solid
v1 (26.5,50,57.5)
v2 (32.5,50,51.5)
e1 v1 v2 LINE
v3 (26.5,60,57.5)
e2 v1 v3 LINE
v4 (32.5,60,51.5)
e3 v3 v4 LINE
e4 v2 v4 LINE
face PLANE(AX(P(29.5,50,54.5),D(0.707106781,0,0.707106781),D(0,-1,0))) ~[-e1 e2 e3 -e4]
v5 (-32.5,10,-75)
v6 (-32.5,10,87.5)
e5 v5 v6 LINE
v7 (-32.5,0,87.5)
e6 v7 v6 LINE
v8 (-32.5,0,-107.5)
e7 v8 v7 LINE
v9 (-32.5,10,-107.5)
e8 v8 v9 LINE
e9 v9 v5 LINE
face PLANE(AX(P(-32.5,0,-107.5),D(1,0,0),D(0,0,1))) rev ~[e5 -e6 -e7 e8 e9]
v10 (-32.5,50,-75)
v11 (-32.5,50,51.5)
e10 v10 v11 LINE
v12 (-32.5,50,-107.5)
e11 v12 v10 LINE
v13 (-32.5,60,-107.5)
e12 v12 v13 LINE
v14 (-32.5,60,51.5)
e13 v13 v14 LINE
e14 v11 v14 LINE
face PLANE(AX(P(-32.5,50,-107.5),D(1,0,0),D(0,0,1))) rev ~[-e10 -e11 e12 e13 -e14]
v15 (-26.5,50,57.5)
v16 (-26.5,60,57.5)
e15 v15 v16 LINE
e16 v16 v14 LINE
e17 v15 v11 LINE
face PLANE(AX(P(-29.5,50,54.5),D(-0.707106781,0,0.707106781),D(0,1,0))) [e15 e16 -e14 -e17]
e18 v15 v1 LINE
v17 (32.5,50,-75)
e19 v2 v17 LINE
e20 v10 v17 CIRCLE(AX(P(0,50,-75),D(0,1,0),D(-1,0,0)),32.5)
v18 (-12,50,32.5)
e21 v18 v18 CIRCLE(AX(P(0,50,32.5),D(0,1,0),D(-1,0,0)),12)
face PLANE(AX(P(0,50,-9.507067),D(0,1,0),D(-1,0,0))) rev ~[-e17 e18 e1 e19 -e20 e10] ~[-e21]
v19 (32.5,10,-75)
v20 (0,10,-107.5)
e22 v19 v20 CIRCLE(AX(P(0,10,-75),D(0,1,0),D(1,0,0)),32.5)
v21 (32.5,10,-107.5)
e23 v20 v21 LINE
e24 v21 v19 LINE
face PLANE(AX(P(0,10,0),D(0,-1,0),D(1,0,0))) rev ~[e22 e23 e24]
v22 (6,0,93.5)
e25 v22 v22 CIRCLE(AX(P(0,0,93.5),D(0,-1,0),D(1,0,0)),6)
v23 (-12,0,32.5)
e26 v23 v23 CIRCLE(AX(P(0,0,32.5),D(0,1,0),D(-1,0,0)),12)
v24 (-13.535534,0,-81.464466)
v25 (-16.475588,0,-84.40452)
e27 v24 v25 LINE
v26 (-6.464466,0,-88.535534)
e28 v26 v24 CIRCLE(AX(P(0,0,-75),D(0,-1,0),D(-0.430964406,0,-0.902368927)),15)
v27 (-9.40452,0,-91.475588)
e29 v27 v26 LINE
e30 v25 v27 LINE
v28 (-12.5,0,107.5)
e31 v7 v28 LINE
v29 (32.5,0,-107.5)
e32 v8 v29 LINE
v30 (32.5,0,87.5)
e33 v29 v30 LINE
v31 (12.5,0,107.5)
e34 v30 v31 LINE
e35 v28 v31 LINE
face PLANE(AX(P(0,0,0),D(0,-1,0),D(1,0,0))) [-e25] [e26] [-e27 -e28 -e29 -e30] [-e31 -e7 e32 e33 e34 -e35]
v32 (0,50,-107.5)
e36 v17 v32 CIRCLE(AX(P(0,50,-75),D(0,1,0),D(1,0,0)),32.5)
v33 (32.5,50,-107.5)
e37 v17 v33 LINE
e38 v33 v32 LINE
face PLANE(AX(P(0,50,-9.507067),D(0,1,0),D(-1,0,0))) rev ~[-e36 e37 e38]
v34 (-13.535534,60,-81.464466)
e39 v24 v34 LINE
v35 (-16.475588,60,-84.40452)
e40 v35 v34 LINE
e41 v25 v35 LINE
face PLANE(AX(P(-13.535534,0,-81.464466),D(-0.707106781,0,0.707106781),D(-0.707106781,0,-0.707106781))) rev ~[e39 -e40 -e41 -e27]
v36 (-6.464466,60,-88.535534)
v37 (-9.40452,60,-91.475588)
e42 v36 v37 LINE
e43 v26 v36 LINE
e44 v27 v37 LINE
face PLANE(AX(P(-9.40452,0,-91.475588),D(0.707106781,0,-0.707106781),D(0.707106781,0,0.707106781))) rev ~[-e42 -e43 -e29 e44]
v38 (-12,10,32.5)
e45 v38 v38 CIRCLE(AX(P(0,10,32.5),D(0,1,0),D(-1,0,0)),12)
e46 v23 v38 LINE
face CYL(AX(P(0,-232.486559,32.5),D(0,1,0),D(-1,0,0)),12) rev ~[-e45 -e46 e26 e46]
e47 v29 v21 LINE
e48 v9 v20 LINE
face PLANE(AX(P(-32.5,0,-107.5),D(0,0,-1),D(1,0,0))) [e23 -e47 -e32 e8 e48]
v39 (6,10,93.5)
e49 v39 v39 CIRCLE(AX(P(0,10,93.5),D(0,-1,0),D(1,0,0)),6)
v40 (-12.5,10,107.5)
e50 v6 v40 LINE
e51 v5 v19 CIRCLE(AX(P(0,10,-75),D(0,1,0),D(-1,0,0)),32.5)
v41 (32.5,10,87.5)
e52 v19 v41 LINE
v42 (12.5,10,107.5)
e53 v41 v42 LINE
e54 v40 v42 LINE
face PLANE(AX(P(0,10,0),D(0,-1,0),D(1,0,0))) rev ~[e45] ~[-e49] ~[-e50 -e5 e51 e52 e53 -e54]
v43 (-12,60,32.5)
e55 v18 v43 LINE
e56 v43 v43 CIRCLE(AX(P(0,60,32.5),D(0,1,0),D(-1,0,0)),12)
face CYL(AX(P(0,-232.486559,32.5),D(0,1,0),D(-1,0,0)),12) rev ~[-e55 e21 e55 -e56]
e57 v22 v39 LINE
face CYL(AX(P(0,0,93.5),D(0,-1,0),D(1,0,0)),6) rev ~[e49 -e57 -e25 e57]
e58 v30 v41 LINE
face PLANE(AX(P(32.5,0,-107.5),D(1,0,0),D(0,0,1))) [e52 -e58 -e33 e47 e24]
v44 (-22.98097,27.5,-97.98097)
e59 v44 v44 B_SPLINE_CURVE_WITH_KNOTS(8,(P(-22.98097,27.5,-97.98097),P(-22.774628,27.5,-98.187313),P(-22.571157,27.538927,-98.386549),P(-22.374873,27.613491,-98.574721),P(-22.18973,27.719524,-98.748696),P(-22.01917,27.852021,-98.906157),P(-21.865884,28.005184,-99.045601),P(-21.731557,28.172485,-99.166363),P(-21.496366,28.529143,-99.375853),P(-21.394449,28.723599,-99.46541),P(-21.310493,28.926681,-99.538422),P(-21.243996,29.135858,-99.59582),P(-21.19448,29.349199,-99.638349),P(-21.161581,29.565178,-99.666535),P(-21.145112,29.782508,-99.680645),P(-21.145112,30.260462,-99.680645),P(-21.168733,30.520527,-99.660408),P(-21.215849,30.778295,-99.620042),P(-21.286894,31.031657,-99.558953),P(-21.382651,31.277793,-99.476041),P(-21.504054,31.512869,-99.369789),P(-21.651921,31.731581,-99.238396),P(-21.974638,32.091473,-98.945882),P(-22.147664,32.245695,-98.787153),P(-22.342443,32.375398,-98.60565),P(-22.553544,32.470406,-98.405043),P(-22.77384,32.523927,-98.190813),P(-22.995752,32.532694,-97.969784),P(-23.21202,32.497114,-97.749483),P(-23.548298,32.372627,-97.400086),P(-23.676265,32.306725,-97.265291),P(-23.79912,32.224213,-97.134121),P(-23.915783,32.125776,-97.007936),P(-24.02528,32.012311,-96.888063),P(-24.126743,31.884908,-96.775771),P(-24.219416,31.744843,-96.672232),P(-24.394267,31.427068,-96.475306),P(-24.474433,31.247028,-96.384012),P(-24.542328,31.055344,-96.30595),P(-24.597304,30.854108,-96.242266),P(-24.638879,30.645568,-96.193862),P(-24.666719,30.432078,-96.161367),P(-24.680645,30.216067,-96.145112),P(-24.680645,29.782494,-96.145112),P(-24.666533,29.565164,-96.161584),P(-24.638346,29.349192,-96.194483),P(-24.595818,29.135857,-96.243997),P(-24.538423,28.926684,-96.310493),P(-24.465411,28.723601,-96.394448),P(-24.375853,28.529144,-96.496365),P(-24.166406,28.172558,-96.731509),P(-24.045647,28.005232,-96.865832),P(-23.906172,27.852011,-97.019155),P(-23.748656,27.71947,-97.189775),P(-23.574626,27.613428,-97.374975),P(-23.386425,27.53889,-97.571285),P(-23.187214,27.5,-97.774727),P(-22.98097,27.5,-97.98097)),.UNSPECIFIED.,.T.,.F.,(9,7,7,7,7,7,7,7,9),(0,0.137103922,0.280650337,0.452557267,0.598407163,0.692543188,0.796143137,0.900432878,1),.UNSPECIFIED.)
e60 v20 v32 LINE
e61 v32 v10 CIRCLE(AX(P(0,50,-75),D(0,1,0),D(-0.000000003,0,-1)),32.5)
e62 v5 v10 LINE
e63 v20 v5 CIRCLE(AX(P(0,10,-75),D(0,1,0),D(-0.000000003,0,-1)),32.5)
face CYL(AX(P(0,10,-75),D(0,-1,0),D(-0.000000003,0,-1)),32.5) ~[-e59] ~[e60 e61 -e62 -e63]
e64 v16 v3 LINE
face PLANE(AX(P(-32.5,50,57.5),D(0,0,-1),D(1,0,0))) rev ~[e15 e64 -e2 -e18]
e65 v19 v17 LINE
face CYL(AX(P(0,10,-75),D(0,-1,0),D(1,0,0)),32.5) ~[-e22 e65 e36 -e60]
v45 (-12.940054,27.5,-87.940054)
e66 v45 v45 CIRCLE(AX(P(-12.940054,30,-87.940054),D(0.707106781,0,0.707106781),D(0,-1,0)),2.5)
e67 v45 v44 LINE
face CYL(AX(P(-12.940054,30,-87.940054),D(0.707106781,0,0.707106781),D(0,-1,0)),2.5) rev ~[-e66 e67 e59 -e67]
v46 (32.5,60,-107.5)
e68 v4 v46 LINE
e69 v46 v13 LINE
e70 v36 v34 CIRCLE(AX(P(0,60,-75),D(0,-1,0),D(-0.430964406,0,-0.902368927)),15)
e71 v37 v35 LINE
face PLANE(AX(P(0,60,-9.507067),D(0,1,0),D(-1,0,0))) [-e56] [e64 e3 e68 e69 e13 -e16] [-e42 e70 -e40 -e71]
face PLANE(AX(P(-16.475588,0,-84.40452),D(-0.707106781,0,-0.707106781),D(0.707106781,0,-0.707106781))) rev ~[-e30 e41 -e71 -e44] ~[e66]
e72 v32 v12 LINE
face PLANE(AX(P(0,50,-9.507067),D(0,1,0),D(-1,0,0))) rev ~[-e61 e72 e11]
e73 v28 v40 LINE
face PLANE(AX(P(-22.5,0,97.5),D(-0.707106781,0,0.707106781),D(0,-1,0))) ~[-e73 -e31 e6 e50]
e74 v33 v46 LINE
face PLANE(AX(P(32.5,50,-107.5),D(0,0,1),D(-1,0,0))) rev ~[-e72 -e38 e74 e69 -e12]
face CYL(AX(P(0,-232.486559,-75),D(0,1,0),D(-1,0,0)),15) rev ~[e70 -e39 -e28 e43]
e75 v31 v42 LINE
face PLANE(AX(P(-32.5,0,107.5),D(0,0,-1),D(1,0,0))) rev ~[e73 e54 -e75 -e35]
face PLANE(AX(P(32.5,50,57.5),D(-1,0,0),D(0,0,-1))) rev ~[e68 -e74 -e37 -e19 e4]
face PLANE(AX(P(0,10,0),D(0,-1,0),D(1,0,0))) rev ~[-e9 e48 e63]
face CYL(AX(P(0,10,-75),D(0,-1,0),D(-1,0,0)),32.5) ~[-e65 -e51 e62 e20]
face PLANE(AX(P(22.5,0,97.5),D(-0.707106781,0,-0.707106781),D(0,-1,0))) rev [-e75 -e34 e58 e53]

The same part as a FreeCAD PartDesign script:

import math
import FreeCAD as App
import Part
import Sketcher

V = App.Vector
Q = App.Units.Quantity


def edges_at(feature, points):
    """Names of the edges that pass closest to the given points."""
    edges = feature.Shape.Edges
    near = lambda p: min(range(len(edges)), key=lambda i: edges[i].distToShape(Part.Vertex(*p))[0])
    return sorted({f"Edge{near(p) + 1}" for p in points})


def add_polygon(sketch, points):
    """Adds a closed chain of lines whose ends are joined by coincident constraints."""
    first, n = sketch.GeometryCount, len(points)
    for a, b in zip(points, points[1:] + points[:1]):
        sketch.addGeometry(Part.LineSegment(App.Vector(*a, 0), App.Vector(*b, 0)), False)
    for i in range(n):
        sketch.addConstraint(Sketcher.Constraint("Coincident", first + i, 2, first + (i + 1) % n, 1))

doc = App.newDocument("Part")
params = doc.addObject("Spreadsheet::Sheet", "Params")
for row, (alias, value) in enumerate([
    ("sketch1_width", "65 mm"),
    ("sketch1_height", "215 mm"),
    ("pad1_length", "10 mm"),
    ("chamfer_size", "20 mm"),
    ("sketch2_radius", "32.5 mm"),
    ("pad2_length", "40 mm"),
    ("sketch3_width", "65 mm"),
    ("sketch3_height", "165 mm"),
    ("pad3_length", "10 mm"),
    ("chamfer2_size", "6 mm"),
    ("sketch4_diameter", "30 mm"),
    ("hole_diameter", "30 mm"),
    ("sketch5_diameter", "24 mm"),
    ("hole2_diameter", "24 mm"),
    ("sketch6_radius", "15 mm"),
    ("sketch6_length", "10 mm"),
    ("sketch7_diameter", "12 mm"),
    ("sketch8_diameter", "5 mm"),
], start=1):
    params.set(f"A{row}", alias)
    params.set(f"B{row}", "=" + value)
    params.setAlias(f"B{row}", alias)

body = doc.addObject("PartDesign::Body", "Body")

# Sketch on XZ plane
sketch1 = body.newObject("Sketcher::SketchObject", "Sketch")
sketch1.AttachmentSupport = (doc.getObject("XZ_Plane"), [""])
sketch1.MapMode = "FlatFace"
add_polygon(sketch1, [(-32, 108), (-32, -108), (32, -108), (32, 108)])  # lines 0-3
sketch1.addConstraint([
    Sketcher.Constraint("Vertical", 0),
    Sketcher.Constraint("Horizontal", 1),
    Sketcher.Constraint("Vertical", 2),
    Sketcher.Constraint("Horizontal", 3),
    Sketcher.Constraint("Symmetric", 0, 2, 2, 2, -1, 1),
    Sketcher.Constraint("DistanceX", 1, 1, 1, 2, Q("65 mm")),
    Sketcher.Constraint("DistanceY", 0, 2, 0, 1, Q("215 mm")),
])
sketch1.setExpression("Constraints[9]", "Params.sketch1_width")
sketch1.setExpression("Constraints[10]", "Params.sketch1_height")
pad1 = body.newObject("PartDesign::Pad", "Pad")
pad1.Profile = sketch1
pad1.setExpression("Length", "Params.pad1_length")
pad1.Reversed = True
doc.recompute()

chamfer = body.newObject("PartDesign::Chamfer", "Chamfer")
chamfer.Base = (pad1, edges_at(pad1, [(-32.5, 5, 107.5), (32.5, 5, 107.5)]))
chamfer.setExpression("Size", "Params.chamfer_size")

# Sketch on XZ plane
sketch2 = body.newObject("Sketcher::SketchObject", "Sketch001")
sketch2.AttachmentSupport = (doc.getObject("XZ_Plane"), [""])
sketch2.MapMode = "FlatFace"
sketch2.AttachmentOffset = App.Placement(V(0, 0, -10), App.Rotation())
sketch2.addGeometry([
    Part.ArcOfCircle(Part.Circle(V(0, -75, 0), V(0, 0, 1), 32), math.radians(180), math.radians(270)),
    Part.ArcOfCircle(Part.Circle(V(0, -75, 0), V(0, 0, 1), 32), math.radians(0), math.radians(180)),
    Part.ArcOfCircle(Part.Circle(V(0, -75, 0), V(0, 0, 1), 32), math.radians(-90), math.radians(0)),
], False)
sketch2.addConstraint([
    Sketcher.Constraint("Tangent", 0, 1, 1, 2),
    Sketcher.Constraint("Tangent", 1, 1, 2, 2),
    Sketcher.Constraint("Tangent", 2, 1, 0, 2),
    Sketcher.Constraint("Symmetric", 0, 1, 1, 1, -2),
    Sketcher.Constraint("PointOnObject", 2, 1, -2),
    Sketcher.Constraint("Horizontal", 2, 3, 0, 1),
    Sketcher.Constraint("Radius", 0, Q("32.5 mm")),
    Sketcher.Constraint("DistanceY", 0, 3, -1, 1, Q("75 mm")),
])
sketch2.setExpression("Constraints[6]", "Params.sketch2_radius")
pad2 = body.newObject("PartDesign::Pad", "Pad001")
pad2.Profile = sketch2
pad2.setExpression("Length", "Params.pad2_length")
pad2.Reversed = True

# Sketch on XZ plane
sketch3 = body.newObject("Sketcher::SketchObject", "Sketch002")
sketch3.AttachmentSupport = (doc.getObject("XZ_Plane"), [""])
sketch3.MapMode = "FlatFace"
sketch3.AttachmentOffset = App.Placement(V(0, 0, -50), App.Rotation())
add_polygon(sketch3, [(-32, 58), (32, 58), (32, -108), (-32, -108)])  # lines 0-3
sketch3.addConstraint([
    Sketcher.Constraint("Horizontal", 0),
    Sketcher.Constraint("Vertical", 1),
    Sketcher.Constraint("Horizontal", 2),
    Sketcher.Constraint("Vertical", 3),
    Sketcher.Constraint("DistanceX", 0, 1, 0, 2, Q("65 mm")),
    Sketcher.Constraint("DistanceY", 1, 2, 1, 1, Q("165 mm")),
    Sketcher.Constraint("DistanceX", -1, 1, 0, 2, Q("32.5 mm")),
    Sketcher.Constraint("DistanceY", -1, 1, 0, 2, Q("57.5 mm")),
])
sketch3.setExpression("Constraints[8]", "Params.sketch3_width")
sketch3.setExpression("Constraints[9]", "Params.sketch3_height")
pad3 = body.newObject("PartDesign::Pad", "Pad002")
pad3.Profile = sketch3
pad3.setExpression("Length", "Params.pad3_length")
pad3.Reversed = True
doc.recompute()

chamfer2 = body.newObject("PartDesign::Chamfer", "Chamfer001")
chamfer2.Base = (pad3, edges_at(pad3, [(32.5, 55, 57.5), (-32.5, 55, 57.5)]))
chamfer2.setExpression("Size", "Params.chamfer2_size")

# Sketch on XZ plane
sketch4 = body.newObject("Sketcher::SketchObject", "Sketch003")
sketch4.AttachmentSupport = (doc.getObject("XZ_Plane"), [""])
sketch4.MapMode = "FlatFace"
sketch4.addGeometry(Part.Circle(V(0, -75, 0), V(0, 0, 1), 15), False)
sketch4.addConstraint([
    Sketcher.Constraint("PointOnObject", 0, 3, -2),
    Sketcher.Constraint("Diameter", 0, Q("30 mm")),
    Sketcher.Constraint("DistanceY", 0, 3, -1, 1, Q("75 mm")),
])
sketch4.setExpression("Constraints[1]", "Params.sketch4_diameter")
doc.recompute()
hole = body.newObject("PartDesign::Hole", "Hole")
hole.Profile = sketch4
hole.ThreadType = "None"
hole.setExpression("Diameter", "Params.hole_diameter")
hole.DepthType = "ThroughAll"

# Sketch on XZ plane
sketch5 = body.newObject("Sketcher::SketchObject", "Sketch004")
sketch5.AttachmentSupport = (doc.getObject("XZ_Plane"), [""])
sketch5.MapMode = "FlatFace"
sketch5.addGeometry(Part.Circle(V(0, 32, 0), V(0, 0, 1), 12), False)
sketch5.addConstraint([
    Sketcher.Constraint("PointOnObject", 0, 3, -2),
    Sketcher.Constraint("Diameter", 0, Q("24 mm")),
    Sketcher.Constraint("DistanceY", -1, 1, 0, 3, Q("32.5 mm")),
])
sketch5.setExpression("Constraints[1]", "Params.sketch5_diameter")
doc.recompute()
hole2 = body.newObject("PartDesign::Hole", "Hole001")
hole2.Profile = sketch5
hole2.ThreadType = "None"
hole2.setExpression("Diameter", "Params.hole2_diameter")
hole2.DepthType = "ThroughAll"

# Sketch on XZ plane
sketch6 = body.newObject("Sketcher::SketchObject", "Sketch005")
sketch6.AttachmentSupport = (doc.getObject("XZ_Plane"), [""])
sketch6.MapMode = "FlatFace"
sketch6.addGeometry([
    Part.ArcOfCircle(Part.Circle(V(0, -75, 0), V(0, 0, 1), 15), math.radians(-154), math.radians(-116)),
    Part.LineSegment(V(-13.5, -81.5, 0), V(-16.5, -84.4, 0)),
    Part.LineSegment(V(-16.5, -84.4, 0), V(-9.4, -91.5, 0)),
    Part.LineSegment(V(-9.4, -91.5, 0), V(-6.5, -88.5, 0)),
], False)
sketch6.addConstraint([
    Sketcher.Constraint("Coincident", 0, 1, 1, 1),
    Sketcher.Constraint("Coincident", 1, 2, 2, 1),
    Sketcher.Constraint("Coincident", 2, 2, 3, 1),
    Sketcher.Constraint("Coincident", 3, 2, 0, 2),
    Sketcher.Constraint("PointOnObject", 0, 3, -2),
    Sketcher.Constraint("Perpendicular", 1, 2),
    Sketcher.Constraint("Perpendicular", 2, 3),
    Sketcher.Constraint("Equal", 1, 3),
    Sketcher.Constraint("Radius", 0, Q("15 mm")),
    Sketcher.Constraint("Angle", 1, Q("-135 deg")),
    Sketcher.Constraint("Distance", 2, Q("10 mm")),
    Sketcher.Constraint("DistanceY", 0, 3, -1, 1, Q("75 mm")),
    Sketcher.Constraint("DistanceX", 1, 2, -1, 1, Q("16.475588 mm")),
])
sketch6.setExpression("Constraints[8]", "Params.sketch6_radius")
sketch6.setExpression("Constraints[10]", "Params.sketch6_length")
pocket1 = body.newObject("PartDesign::Pocket", "Pocket")
pocket1.Profile = sketch6
pocket1.Type = "ThroughAll"

# Sketch on XZ plane
sketch7 = body.newObject("Sketcher::SketchObject", "Sketch006")
sketch7.AttachmentSupport = (doc.getObject("XZ_Plane"), [""])
sketch7.MapMode = "FlatFace"
sketch7.addGeometry(Part.Circle(V(0, 94, 0), V(0, 0, 1), 6), False)
sketch7.addConstraint([
    Sketcher.Constraint("PointOnObject", 0, 3, -2),
    Sketcher.Constraint("Diameter", 0, Q("12 mm")),
    Sketcher.Constraint("DistanceY", -1, 1, 0, 3, Q("93.5 mm")),
])
sketch7.setExpression("Constraints[1]", "Params.sketch7_diameter")
pocket2 = body.newObject("PartDesign::Pocket", "Pocket001")
pocket2.Profile = sketch7
pocket2.Type = "ThroughAll"

# Sketch on an angled plane
sketch8 = body.newObject("Sketcher::SketchObject", "Sketch007")
sketch8.Placement = App.Placement(V(-50.440054, 0, -50.440054), App.Rotation(V(0, -1, 0), V(0.707106781, 0, -0.707106781), V(0.707106781, 0, 0.707106781), "ZXY"))
sketch8.addGeometry(Part.Circle(V(-30, 53, 0), V(0, 0, 1), 2.5), False)
sketch8.addConstraint([
    Sketcher.Constraint("Diameter", 0, Q("5 mm")),
    Sketcher.Constraint("DistanceX", 0, 3, -1, 1, Q("30 mm")),
    Sketcher.Constraint("DistanceY", -1, 1, 0, 3, Q("53.033009 mm")),
])
sketch8.setExpression("Constraints[0]", "Params.sketch8_diameter")
pocket3 = body.newObject("PartDesign::Pocket", "Pocket002")
pocket3.Profile = sketch8
pocket3.Type = "ThroughAll"

doc.recompute()
